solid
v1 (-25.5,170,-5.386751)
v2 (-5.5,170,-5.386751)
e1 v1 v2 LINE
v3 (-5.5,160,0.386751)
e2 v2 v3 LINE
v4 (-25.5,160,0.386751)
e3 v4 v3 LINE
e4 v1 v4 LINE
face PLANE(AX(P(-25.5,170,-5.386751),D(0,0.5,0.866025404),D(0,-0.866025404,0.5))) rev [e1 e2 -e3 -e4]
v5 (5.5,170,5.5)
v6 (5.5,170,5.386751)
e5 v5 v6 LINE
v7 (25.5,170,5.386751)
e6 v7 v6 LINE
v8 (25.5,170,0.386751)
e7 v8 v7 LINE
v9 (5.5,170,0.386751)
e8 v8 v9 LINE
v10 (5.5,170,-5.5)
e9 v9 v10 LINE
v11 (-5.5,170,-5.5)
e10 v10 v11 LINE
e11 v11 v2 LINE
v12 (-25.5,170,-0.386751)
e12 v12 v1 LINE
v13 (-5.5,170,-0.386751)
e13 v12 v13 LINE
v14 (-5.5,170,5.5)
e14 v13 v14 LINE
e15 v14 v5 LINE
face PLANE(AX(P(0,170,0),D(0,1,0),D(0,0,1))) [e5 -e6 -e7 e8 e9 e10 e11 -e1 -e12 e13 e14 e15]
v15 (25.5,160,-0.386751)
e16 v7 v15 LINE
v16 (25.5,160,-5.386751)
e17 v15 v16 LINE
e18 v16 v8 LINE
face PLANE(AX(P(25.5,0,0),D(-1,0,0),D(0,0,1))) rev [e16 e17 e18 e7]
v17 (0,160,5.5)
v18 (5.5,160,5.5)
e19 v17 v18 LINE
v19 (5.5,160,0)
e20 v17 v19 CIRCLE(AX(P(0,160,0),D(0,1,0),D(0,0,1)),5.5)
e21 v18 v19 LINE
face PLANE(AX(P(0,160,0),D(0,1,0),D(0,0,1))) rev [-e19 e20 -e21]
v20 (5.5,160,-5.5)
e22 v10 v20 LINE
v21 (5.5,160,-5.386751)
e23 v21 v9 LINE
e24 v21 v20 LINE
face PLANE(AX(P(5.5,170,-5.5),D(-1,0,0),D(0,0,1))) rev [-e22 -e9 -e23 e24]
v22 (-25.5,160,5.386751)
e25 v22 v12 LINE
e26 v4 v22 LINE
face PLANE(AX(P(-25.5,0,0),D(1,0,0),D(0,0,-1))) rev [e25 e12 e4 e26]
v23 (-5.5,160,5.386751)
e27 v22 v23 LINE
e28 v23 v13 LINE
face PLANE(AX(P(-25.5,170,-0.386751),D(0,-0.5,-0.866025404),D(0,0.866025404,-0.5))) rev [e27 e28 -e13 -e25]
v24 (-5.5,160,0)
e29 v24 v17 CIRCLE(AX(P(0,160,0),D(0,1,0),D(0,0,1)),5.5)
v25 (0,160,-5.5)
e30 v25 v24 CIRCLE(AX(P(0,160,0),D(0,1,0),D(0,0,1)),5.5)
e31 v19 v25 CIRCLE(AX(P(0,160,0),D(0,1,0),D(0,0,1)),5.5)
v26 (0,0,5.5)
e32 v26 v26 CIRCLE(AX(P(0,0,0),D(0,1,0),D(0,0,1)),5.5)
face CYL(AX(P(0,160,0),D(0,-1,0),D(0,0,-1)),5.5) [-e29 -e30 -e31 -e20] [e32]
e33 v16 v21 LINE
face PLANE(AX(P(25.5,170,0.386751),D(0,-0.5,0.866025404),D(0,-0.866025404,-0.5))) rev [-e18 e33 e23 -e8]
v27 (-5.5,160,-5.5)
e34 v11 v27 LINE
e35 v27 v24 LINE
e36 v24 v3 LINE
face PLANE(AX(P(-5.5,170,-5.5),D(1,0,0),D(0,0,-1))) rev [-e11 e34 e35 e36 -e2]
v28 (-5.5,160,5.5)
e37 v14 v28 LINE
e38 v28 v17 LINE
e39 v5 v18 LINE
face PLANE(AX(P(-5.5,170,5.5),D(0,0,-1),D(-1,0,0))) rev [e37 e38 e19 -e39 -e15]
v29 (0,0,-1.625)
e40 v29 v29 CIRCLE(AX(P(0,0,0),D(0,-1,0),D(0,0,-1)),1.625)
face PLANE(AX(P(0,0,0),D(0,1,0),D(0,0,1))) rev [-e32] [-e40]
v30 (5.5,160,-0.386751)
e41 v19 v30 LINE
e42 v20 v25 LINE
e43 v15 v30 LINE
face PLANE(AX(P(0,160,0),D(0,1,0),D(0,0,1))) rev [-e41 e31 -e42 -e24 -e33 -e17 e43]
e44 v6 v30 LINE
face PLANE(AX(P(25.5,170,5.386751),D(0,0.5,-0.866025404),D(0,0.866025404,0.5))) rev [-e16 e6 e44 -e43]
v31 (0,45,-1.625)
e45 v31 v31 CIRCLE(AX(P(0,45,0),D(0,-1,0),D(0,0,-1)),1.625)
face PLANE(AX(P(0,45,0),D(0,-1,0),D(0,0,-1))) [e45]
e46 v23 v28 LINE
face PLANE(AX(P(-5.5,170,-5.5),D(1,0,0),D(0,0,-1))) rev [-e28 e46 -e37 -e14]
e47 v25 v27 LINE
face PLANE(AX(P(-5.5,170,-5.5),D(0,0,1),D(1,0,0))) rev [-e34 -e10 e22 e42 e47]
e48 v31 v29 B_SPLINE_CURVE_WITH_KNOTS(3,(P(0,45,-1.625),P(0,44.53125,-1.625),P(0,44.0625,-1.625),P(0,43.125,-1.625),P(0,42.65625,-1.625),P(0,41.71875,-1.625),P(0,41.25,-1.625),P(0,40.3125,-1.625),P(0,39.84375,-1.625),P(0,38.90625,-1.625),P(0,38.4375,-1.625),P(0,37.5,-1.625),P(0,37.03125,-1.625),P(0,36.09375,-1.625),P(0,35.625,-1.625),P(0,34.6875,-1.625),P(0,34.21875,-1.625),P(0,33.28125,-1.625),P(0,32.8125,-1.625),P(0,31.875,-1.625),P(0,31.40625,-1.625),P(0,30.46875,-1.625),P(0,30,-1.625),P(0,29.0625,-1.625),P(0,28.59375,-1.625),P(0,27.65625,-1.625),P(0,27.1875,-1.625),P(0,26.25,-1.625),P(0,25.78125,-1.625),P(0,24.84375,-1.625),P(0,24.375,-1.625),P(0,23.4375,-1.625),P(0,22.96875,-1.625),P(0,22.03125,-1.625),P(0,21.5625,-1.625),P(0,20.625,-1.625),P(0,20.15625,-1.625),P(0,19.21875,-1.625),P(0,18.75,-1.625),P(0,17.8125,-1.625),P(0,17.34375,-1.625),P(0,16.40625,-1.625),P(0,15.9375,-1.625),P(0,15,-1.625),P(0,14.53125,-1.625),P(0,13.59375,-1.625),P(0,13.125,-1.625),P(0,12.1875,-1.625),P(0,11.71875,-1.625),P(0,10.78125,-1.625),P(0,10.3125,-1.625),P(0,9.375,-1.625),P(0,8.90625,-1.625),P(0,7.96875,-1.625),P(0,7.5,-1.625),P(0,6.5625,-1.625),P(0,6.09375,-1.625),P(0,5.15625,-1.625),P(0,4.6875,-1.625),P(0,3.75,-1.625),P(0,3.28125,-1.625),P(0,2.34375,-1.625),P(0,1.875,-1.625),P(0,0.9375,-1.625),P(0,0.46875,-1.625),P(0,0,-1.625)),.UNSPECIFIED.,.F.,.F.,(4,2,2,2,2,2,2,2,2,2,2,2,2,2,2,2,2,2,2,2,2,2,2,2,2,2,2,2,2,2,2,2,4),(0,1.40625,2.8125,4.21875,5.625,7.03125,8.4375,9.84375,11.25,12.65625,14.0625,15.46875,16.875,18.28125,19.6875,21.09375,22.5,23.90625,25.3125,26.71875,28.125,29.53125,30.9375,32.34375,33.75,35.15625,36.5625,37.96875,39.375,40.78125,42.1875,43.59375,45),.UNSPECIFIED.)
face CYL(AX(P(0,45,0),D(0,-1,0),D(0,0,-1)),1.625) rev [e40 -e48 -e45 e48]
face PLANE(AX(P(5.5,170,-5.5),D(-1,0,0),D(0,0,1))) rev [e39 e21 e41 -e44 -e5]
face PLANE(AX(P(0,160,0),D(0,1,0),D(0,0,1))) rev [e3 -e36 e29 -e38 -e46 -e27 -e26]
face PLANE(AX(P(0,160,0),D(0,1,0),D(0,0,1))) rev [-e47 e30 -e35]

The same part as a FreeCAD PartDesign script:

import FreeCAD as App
import Part
import Sketcher

V = App.Vector
Q = App.Units.Quantity

doc = App.newDocument("Part")
params = doc.addObject("Spreadsheet::Sheet", "Params")
for row, (alias, value) in enumerate([
    ("sketch1_diameter", "11 mm"),
    ("pad1_length", "160 mm"),
    ("sketch2_width", "11 mm"),
    ("pad2_length", "10 mm"),
    ("sketch3_height", "5 mm"),
    ("pad3_length", "20 mm"),
    ("sketch4_diameter", "3.25 mm"),
    ("pocket1_length", "45 mm"),
], start=1):
    params.set(f"A{row}", alias)
    params.set(f"B{row}", "=" + value)
    params.setAlias(f"B{row}", alias)

body = doc.addObject("PartDesign::Body", "Body")

# Sketch on XZ plane
sketch1 = doc.addObject("Sketcher::SketchObject", "Sketch")
body.addObject(sketch1)
sketch1.AttachmentSupport = (doc.XZ_Plane, [""])
sketch1.MapMode = "FlatFace"
sketch1.addGeometry(Part.Circle(V(0, 0, 0), V(0, 0, 1), 5.5), False)
sketch1.addConstraint([
    Sketcher.Constraint("Coincident", 0, 3, -1, 1),
    Sketcher.Constraint("Diameter", 0, Q("11 mm")),
])
sketch1.setExpression("Constraints[1]", "Params.sketch1_diameter")
pad1 = doc.addObject("PartDesign::Pad", "Pad")
body.addObject(pad1)
pad1.Profile = sketch1
pad1.setExpression("Length", "Params.pad1_length")
pad1.Reversed = True

# Sketch on XZ plane
sketch2 = doc.addObject("Sketcher::SketchObject", "Sketch001")
body.addObject(sketch2)
sketch2.AttachmentSupport = (doc.XZ_Plane, [""])
sketch2.MapMode = "FlatFace"
sketch2.AttachmentOffset = App.Placement(V(0, 0, -160), App.Rotation())
sketch2.addGeometry([
    Part.LineSegment(V(-5.5, -5.5, 0), V(-5.5, 5.5, 0)),
    Part.LineSegment(V(-5.5, 5.5, 0), V(5.5, 5.5, 0)),
    Part.LineSegment(V(5.5, 5.5, 0), V(5.5, -5.5, 0)),
    Part.LineSegment(V(5.5, -5.5, 0), V(-5.5, -5.5, 0)),
], False)
sketch2.addConstraint([
    Sketcher.Constraint("Coincident", 0, 2, 1, 1),
    Sketcher.Constraint("Coincident", 1, 2, 2, 1),
    Sketcher.Constraint("Coincident", 2, 2, 3, 1),
    Sketcher.Constraint("Coincident", 3, 2, 0, 1),
    Sketcher.Constraint("Vertical", 0),
    Sketcher.Constraint("Horizontal", 1),
    Sketcher.Constraint("Vertical", 2),
    Sketcher.Constraint("Horizontal", 3),
    Sketcher.Constraint("Symmetric", 0, 2, 2, 2, -1, 1),
    Sketcher.Constraint("Equal", 3, 0),
    Sketcher.Constraint("DistanceX", 1, 1, 1, 2, Q("11 mm")),
])
sketch2.setExpression("Constraints[10]", "Params.sketch2_width")
pad2 = doc.addObject("PartDesign::Pad", "Pad001")
body.addObject(pad2)
pad2.Profile = sketch2
pad2.setExpression("Length", "Params.pad2_length")
pad2.Reversed = True

# Sketch on YZ plane
sketch3 = doc.addObject("Sketcher::SketchObject", "Sketch002")
body.addObject(sketch3)
sketch3.AttachmentSupport = (doc.YZ_Plane, [""])
sketch3.MapMode = "FlatFace"
sketch3.AttachmentOffset = App.Placement(V(0, 0, -5.5), App.Rotation())
sketch3.addGeometry([
    Part.LineSegment(V(170, -0.386751, 0), V(170, -5.386751, 0)),
    Part.LineSegment(V(170, -5.386751, 0), V(160, 0.386751, 0)),
    Part.LineSegment(V(160, 0.386751, 0), V(160, 5.386751, 0)),
    Part.LineSegment(V(160, 5.386751, 0), V(170, -0.386751, 0)),
], False)
sketch3.addConstraint([
    Sketcher.Constraint("Coincident", 0, 2, 1, 1),
    Sketcher.Constraint("Coincident", 1, 2, 2, 1),
    Sketcher.Constraint("Coincident", 2, 2, 3, 1),
    Sketcher.Constraint("Coincident", 3, 2, 0, 1),
    Sketcher.Constraint("Vertical", 0),
    Sketcher.Constraint("Vertical", 2),
    Sketcher.Constraint("Parallel", 1, 3),
    Sketcher.Constraint("DistanceY", 0, 2, 0, 1, Q("5 mm")),
    Sketcher.Constraint("Angle", 1, Q("150 deg")),
    Sketcher.Constraint("DistanceX", -1, 1, 0, 2, Q("170 mm")),
    Sketcher.Constraint("DistanceX", -1, 1, 1, 2, Q("160 mm")),
    Sketcher.Constraint("DistanceY", 0, 2, -1, 1, Q("5.386751 mm")),
])
sketch3.setExpression("Constraints[7]", "Params.sketch3_height")
pad3 = doc.addObject("PartDesign::Pad", "Pad002")
body.addObject(pad3)
pad3.Profile = sketch3
pad3.setExpression("Length", "Params.pad3_length")
pad3.Reversed = True
doc.recompute()

polarpattern = doc.addObject("PartDesign::PolarPattern", "PolarPattern")
body.addObject(polarpattern)
polarpattern.Originals = [pad3]
polarpattern.Axis = (doc.Y_Axis, [""])
polarpattern.Angle = 360
polarpattern.Occurrences = 2
body.Tip = polarpattern

# Sketch on XZ plane
sketch4 = doc.addObject("Sketcher::SketchObject", "Sketch003")
body.addObject(sketch4)
sketch4.AttachmentSupport = (doc.XZ_Plane, [""])
sketch4.MapMode = "FlatFace"
sketch4.addGeometry(Part.Circle(V(0, 0, 0), V(0, 0, 1), 1.625), False)
sketch4.addConstraint([
    Sketcher.Constraint("Coincident", 0, 3, -1, 1),
    Sketcher.Constraint("Diameter", 0, Q("3.25 mm")),
])
sketch4.setExpression("Constraints[1]", "Params.sketch4_diameter")
pocket1 = doc.addObject("PartDesign::Pocket", "Pocket")
body.addObject(pocket1)
pocket1.Profile = sketch4
pocket1.setExpression("Length", "Params.pocket1_length")

doc.recompute()
